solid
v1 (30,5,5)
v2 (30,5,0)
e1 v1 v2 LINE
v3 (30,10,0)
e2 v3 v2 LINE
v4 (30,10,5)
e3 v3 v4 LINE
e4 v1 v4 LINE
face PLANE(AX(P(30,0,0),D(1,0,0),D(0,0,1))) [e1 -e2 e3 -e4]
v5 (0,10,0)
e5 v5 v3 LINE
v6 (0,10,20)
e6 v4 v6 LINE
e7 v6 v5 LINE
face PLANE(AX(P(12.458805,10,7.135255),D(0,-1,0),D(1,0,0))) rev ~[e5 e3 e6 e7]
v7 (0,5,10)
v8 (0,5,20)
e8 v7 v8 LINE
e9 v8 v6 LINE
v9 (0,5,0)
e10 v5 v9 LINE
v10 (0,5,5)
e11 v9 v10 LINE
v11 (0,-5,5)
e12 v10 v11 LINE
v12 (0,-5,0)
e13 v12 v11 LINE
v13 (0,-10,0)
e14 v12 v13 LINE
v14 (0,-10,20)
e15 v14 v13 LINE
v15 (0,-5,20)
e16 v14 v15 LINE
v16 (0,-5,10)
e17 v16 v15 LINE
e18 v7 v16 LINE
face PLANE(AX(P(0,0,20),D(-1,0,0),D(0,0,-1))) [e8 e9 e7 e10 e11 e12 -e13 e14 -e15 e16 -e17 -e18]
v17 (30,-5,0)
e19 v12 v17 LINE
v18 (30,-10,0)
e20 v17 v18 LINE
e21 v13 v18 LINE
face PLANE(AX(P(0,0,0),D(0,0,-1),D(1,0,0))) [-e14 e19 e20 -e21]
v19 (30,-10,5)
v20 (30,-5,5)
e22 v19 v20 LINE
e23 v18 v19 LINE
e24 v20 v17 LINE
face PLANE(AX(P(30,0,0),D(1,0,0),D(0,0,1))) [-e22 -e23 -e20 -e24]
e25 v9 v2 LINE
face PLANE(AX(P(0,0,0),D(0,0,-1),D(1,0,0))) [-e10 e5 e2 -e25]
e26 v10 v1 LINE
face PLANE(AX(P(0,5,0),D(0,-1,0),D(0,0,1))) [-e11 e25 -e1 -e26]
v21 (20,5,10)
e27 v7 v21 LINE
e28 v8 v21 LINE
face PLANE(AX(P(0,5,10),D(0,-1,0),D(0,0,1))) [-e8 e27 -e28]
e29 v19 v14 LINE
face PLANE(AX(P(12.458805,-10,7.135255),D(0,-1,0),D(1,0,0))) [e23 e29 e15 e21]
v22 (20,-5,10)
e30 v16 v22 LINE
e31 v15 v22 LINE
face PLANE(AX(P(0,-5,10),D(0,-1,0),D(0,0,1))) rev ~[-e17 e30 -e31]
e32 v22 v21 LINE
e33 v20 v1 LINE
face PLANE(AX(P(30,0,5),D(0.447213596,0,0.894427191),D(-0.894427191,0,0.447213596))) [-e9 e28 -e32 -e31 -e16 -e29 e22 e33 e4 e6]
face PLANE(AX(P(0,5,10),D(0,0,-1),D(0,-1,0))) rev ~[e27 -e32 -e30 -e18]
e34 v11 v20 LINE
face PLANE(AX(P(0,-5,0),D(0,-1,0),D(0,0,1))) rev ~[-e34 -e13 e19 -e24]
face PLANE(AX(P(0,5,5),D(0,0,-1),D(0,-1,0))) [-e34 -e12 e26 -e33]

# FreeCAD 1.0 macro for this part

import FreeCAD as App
import Part
import Sketcher
Q = App.Units.Quantity

doc = App.newDocument("Part")
body = doc.addObject("PartDesign::Body", "Body")

sketch1 = doc.addObject("Sketcher::SketchObject", "Sketch")
body.addObject(sketch1)
sketch1.AttachmentSupport = (doc.XZ_Plane, [""])
sketch1.MapMode = "FlatFace"
sketch1.addGeometry(Part.LineSegment(App.Vector(0, 20, 0), App.Vector(0, 0, 0)), False)
sketch1.addGeometry(Part.LineSegment(App.Vector(0, 0, 0), App.Vector(30, 0, 0)), False)
sketch1.addGeometry(Part.LineSegment(App.Vector(30, 0, 0), App.Vector(30, 5, 0)), False)
sketch1.addGeometry(Part.LineSegment(App.Vector(30, 5, 0), App.Vector(0, 20, 0)), False)
sketch1.addConstraint(Sketcher.Constraint("Coincident", 0, 2, 1, 1))
sketch1.addConstraint(Sketcher.Constraint("Coincident", 1, 2, 2, 1))
sketch1.addConstraint(Sketcher.Constraint("Coincident", 2, 2, 3, 1))
sketch1.addConstraint(Sketcher.Constraint("Coincident", 3, 2, 0, 1))
sketch1.addConstraint(Sketcher.Constraint("Vertical", 0))
sketch1.addConstraint(Sketcher.Constraint("Horizontal", 1))
sketch1.addConstraint(Sketcher.Constraint("Vertical", 2))
sketch1.addConstraint(Sketcher.Constraint("Coincident", 0, 2, -1, 1))
sketch1.addConstraint(Sketcher.Constraint("DistanceX", 1, 1, 1, 2, Q("30 mm")))
sketch1.addConstraint(Sketcher.Constraint("DistanceY", 0, 2, 0, 1, Q("20 mm")))
sketch1.addConstraint(Sketcher.Constraint("DistanceY", 2, 1, 2, 2, Q("5 mm")))
pad1 = doc.addObject("PartDesign::Pad", "Pad")
body.addObject(pad1)
pad1.Profile = sketch1
pad1.Length = 20
pad1.Midplane = True

sketch2 = doc.addObject("Sketcher::SketchObject", "Sketch001")
body.addObject(sketch2)
sketch2.AttachmentSupport = (doc.YZ_Plane, [""])
sketch2.MapMode = "FlatFace"
sketch2.addGeometry(Part.LineSegment(App.Vector(5, 20, 0), App.Vector(5, 10, 0)), False)
sketch2.addGeometry(Part.LineSegment(App.Vector(5, 10, 0), App.Vector(-5, 10, 0)), False)
sketch2.addGeometry(Part.LineSegment(App.Vector(-5, 10, 0), App.Vector(-5, 20, 0)), False)
sketch2.addGeometry(Part.LineSegment(App.Vector(-5, 20, 0), App.Vector(5, 20, 0)), False)
sketch2.addGeometry(Part.LineSegment(App.Vector(5, 5, 0), App.Vector(5, 0, 0)), False)
sketch2.addGeometry(Part.LineSegment(App.Vector(5, 0, 0), App.Vector(-5, 0, 0)), False)
sketch2.addGeometry(Part.LineSegment(App.Vector(-5, 0, 0), App.Vector(-5, 5, 0)), False)
sketch2.addGeometry(Part.LineSegment(App.Vector(-5, 5, 0), App.Vector(5, 5, 0)), False)
sketch2.addConstraint(Sketcher.Constraint("Coincident", 0, 2, 1, 1))
sketch2.addConstraint(Sketcher.Constraint("Coincident", 1, 2, 2, 1))
sketch2.addConstraint(Sketcher.Constraint("Coincident", 2, 2, 3, 1))
sketch2.addConstraint(Sketcher.Constraint("Coincident", 3, 2, 0, 1))
sketch2.addConstraint(Sketcher.Constraint("Coincident", 4, 2, 5, 1))
sketch2.addConstraint(Sketcher.Constraint("Coincident", 5, 2, 6, 1))
sketch2.addConstraint(Sketcher.Constraint("Coincident", 6, 2, 7, 1))
sketch2.addConstraint(Sketcher.Constraint("Coincident", 7, 2, 4, 1))
sketch2.addConstraint(Sketcher.Constraint("Vertical", 0))
sketch2.addConstraint(Sketcher.Constraint("Horizontal", 1))
sketch2.addConstraint(Sketcher.Constraint("Vertical", 2))
sketch2.addConstraint(Sketcher.Constraint("Horizontal", 3))
sketch2.addConstraint(Sketcher.Constraint("Vertical", 4))
sketch2.addConstraint(Sketcher.Constraint("Horizontal", 5))
sketch2.addConstraint(Sketcher.Constraint("Vertical", 6))
sketch2.addConstraint(Sketcher.Constraint("Horizontal", 7))
sketch2.addConstraint(Sketcher.Constraint("Symmetric", 4, 2, 5, 2, -1, 1))
sketch2.addConstraint(Sketcher.Constraint("Vertical", 3, 2, 4, 2))
sketch2.addConstraint(Sketcher.Constraint("Vertical", 2, 2, 5, 2))
sketch2.addConstraint(Sketcher.Constraint("Equal", 7, 0))
sketch2.addConstraint(Sketcher.Constraint("DistanceX", 1, 2, 1, 1, Q("10 mm")))
sketch2.addConstraint(Sketcher.Constraint("DistanceY", 4, 2, 4, 1, Q("5 mm")))
sketch2.addConstraint(Sketcher.Constraint("DistanceY", -1, 1, 0, 2, Q("10 mm")))
pocket1 = doc.addObject("PartDesign::Pocket", "Pocket")
body.addObject(pocket1)
pocket1.Profile = sketch2
pocket1.Type = "ThroughAll"
pocket1.Reversed = True

doc.recompute()
